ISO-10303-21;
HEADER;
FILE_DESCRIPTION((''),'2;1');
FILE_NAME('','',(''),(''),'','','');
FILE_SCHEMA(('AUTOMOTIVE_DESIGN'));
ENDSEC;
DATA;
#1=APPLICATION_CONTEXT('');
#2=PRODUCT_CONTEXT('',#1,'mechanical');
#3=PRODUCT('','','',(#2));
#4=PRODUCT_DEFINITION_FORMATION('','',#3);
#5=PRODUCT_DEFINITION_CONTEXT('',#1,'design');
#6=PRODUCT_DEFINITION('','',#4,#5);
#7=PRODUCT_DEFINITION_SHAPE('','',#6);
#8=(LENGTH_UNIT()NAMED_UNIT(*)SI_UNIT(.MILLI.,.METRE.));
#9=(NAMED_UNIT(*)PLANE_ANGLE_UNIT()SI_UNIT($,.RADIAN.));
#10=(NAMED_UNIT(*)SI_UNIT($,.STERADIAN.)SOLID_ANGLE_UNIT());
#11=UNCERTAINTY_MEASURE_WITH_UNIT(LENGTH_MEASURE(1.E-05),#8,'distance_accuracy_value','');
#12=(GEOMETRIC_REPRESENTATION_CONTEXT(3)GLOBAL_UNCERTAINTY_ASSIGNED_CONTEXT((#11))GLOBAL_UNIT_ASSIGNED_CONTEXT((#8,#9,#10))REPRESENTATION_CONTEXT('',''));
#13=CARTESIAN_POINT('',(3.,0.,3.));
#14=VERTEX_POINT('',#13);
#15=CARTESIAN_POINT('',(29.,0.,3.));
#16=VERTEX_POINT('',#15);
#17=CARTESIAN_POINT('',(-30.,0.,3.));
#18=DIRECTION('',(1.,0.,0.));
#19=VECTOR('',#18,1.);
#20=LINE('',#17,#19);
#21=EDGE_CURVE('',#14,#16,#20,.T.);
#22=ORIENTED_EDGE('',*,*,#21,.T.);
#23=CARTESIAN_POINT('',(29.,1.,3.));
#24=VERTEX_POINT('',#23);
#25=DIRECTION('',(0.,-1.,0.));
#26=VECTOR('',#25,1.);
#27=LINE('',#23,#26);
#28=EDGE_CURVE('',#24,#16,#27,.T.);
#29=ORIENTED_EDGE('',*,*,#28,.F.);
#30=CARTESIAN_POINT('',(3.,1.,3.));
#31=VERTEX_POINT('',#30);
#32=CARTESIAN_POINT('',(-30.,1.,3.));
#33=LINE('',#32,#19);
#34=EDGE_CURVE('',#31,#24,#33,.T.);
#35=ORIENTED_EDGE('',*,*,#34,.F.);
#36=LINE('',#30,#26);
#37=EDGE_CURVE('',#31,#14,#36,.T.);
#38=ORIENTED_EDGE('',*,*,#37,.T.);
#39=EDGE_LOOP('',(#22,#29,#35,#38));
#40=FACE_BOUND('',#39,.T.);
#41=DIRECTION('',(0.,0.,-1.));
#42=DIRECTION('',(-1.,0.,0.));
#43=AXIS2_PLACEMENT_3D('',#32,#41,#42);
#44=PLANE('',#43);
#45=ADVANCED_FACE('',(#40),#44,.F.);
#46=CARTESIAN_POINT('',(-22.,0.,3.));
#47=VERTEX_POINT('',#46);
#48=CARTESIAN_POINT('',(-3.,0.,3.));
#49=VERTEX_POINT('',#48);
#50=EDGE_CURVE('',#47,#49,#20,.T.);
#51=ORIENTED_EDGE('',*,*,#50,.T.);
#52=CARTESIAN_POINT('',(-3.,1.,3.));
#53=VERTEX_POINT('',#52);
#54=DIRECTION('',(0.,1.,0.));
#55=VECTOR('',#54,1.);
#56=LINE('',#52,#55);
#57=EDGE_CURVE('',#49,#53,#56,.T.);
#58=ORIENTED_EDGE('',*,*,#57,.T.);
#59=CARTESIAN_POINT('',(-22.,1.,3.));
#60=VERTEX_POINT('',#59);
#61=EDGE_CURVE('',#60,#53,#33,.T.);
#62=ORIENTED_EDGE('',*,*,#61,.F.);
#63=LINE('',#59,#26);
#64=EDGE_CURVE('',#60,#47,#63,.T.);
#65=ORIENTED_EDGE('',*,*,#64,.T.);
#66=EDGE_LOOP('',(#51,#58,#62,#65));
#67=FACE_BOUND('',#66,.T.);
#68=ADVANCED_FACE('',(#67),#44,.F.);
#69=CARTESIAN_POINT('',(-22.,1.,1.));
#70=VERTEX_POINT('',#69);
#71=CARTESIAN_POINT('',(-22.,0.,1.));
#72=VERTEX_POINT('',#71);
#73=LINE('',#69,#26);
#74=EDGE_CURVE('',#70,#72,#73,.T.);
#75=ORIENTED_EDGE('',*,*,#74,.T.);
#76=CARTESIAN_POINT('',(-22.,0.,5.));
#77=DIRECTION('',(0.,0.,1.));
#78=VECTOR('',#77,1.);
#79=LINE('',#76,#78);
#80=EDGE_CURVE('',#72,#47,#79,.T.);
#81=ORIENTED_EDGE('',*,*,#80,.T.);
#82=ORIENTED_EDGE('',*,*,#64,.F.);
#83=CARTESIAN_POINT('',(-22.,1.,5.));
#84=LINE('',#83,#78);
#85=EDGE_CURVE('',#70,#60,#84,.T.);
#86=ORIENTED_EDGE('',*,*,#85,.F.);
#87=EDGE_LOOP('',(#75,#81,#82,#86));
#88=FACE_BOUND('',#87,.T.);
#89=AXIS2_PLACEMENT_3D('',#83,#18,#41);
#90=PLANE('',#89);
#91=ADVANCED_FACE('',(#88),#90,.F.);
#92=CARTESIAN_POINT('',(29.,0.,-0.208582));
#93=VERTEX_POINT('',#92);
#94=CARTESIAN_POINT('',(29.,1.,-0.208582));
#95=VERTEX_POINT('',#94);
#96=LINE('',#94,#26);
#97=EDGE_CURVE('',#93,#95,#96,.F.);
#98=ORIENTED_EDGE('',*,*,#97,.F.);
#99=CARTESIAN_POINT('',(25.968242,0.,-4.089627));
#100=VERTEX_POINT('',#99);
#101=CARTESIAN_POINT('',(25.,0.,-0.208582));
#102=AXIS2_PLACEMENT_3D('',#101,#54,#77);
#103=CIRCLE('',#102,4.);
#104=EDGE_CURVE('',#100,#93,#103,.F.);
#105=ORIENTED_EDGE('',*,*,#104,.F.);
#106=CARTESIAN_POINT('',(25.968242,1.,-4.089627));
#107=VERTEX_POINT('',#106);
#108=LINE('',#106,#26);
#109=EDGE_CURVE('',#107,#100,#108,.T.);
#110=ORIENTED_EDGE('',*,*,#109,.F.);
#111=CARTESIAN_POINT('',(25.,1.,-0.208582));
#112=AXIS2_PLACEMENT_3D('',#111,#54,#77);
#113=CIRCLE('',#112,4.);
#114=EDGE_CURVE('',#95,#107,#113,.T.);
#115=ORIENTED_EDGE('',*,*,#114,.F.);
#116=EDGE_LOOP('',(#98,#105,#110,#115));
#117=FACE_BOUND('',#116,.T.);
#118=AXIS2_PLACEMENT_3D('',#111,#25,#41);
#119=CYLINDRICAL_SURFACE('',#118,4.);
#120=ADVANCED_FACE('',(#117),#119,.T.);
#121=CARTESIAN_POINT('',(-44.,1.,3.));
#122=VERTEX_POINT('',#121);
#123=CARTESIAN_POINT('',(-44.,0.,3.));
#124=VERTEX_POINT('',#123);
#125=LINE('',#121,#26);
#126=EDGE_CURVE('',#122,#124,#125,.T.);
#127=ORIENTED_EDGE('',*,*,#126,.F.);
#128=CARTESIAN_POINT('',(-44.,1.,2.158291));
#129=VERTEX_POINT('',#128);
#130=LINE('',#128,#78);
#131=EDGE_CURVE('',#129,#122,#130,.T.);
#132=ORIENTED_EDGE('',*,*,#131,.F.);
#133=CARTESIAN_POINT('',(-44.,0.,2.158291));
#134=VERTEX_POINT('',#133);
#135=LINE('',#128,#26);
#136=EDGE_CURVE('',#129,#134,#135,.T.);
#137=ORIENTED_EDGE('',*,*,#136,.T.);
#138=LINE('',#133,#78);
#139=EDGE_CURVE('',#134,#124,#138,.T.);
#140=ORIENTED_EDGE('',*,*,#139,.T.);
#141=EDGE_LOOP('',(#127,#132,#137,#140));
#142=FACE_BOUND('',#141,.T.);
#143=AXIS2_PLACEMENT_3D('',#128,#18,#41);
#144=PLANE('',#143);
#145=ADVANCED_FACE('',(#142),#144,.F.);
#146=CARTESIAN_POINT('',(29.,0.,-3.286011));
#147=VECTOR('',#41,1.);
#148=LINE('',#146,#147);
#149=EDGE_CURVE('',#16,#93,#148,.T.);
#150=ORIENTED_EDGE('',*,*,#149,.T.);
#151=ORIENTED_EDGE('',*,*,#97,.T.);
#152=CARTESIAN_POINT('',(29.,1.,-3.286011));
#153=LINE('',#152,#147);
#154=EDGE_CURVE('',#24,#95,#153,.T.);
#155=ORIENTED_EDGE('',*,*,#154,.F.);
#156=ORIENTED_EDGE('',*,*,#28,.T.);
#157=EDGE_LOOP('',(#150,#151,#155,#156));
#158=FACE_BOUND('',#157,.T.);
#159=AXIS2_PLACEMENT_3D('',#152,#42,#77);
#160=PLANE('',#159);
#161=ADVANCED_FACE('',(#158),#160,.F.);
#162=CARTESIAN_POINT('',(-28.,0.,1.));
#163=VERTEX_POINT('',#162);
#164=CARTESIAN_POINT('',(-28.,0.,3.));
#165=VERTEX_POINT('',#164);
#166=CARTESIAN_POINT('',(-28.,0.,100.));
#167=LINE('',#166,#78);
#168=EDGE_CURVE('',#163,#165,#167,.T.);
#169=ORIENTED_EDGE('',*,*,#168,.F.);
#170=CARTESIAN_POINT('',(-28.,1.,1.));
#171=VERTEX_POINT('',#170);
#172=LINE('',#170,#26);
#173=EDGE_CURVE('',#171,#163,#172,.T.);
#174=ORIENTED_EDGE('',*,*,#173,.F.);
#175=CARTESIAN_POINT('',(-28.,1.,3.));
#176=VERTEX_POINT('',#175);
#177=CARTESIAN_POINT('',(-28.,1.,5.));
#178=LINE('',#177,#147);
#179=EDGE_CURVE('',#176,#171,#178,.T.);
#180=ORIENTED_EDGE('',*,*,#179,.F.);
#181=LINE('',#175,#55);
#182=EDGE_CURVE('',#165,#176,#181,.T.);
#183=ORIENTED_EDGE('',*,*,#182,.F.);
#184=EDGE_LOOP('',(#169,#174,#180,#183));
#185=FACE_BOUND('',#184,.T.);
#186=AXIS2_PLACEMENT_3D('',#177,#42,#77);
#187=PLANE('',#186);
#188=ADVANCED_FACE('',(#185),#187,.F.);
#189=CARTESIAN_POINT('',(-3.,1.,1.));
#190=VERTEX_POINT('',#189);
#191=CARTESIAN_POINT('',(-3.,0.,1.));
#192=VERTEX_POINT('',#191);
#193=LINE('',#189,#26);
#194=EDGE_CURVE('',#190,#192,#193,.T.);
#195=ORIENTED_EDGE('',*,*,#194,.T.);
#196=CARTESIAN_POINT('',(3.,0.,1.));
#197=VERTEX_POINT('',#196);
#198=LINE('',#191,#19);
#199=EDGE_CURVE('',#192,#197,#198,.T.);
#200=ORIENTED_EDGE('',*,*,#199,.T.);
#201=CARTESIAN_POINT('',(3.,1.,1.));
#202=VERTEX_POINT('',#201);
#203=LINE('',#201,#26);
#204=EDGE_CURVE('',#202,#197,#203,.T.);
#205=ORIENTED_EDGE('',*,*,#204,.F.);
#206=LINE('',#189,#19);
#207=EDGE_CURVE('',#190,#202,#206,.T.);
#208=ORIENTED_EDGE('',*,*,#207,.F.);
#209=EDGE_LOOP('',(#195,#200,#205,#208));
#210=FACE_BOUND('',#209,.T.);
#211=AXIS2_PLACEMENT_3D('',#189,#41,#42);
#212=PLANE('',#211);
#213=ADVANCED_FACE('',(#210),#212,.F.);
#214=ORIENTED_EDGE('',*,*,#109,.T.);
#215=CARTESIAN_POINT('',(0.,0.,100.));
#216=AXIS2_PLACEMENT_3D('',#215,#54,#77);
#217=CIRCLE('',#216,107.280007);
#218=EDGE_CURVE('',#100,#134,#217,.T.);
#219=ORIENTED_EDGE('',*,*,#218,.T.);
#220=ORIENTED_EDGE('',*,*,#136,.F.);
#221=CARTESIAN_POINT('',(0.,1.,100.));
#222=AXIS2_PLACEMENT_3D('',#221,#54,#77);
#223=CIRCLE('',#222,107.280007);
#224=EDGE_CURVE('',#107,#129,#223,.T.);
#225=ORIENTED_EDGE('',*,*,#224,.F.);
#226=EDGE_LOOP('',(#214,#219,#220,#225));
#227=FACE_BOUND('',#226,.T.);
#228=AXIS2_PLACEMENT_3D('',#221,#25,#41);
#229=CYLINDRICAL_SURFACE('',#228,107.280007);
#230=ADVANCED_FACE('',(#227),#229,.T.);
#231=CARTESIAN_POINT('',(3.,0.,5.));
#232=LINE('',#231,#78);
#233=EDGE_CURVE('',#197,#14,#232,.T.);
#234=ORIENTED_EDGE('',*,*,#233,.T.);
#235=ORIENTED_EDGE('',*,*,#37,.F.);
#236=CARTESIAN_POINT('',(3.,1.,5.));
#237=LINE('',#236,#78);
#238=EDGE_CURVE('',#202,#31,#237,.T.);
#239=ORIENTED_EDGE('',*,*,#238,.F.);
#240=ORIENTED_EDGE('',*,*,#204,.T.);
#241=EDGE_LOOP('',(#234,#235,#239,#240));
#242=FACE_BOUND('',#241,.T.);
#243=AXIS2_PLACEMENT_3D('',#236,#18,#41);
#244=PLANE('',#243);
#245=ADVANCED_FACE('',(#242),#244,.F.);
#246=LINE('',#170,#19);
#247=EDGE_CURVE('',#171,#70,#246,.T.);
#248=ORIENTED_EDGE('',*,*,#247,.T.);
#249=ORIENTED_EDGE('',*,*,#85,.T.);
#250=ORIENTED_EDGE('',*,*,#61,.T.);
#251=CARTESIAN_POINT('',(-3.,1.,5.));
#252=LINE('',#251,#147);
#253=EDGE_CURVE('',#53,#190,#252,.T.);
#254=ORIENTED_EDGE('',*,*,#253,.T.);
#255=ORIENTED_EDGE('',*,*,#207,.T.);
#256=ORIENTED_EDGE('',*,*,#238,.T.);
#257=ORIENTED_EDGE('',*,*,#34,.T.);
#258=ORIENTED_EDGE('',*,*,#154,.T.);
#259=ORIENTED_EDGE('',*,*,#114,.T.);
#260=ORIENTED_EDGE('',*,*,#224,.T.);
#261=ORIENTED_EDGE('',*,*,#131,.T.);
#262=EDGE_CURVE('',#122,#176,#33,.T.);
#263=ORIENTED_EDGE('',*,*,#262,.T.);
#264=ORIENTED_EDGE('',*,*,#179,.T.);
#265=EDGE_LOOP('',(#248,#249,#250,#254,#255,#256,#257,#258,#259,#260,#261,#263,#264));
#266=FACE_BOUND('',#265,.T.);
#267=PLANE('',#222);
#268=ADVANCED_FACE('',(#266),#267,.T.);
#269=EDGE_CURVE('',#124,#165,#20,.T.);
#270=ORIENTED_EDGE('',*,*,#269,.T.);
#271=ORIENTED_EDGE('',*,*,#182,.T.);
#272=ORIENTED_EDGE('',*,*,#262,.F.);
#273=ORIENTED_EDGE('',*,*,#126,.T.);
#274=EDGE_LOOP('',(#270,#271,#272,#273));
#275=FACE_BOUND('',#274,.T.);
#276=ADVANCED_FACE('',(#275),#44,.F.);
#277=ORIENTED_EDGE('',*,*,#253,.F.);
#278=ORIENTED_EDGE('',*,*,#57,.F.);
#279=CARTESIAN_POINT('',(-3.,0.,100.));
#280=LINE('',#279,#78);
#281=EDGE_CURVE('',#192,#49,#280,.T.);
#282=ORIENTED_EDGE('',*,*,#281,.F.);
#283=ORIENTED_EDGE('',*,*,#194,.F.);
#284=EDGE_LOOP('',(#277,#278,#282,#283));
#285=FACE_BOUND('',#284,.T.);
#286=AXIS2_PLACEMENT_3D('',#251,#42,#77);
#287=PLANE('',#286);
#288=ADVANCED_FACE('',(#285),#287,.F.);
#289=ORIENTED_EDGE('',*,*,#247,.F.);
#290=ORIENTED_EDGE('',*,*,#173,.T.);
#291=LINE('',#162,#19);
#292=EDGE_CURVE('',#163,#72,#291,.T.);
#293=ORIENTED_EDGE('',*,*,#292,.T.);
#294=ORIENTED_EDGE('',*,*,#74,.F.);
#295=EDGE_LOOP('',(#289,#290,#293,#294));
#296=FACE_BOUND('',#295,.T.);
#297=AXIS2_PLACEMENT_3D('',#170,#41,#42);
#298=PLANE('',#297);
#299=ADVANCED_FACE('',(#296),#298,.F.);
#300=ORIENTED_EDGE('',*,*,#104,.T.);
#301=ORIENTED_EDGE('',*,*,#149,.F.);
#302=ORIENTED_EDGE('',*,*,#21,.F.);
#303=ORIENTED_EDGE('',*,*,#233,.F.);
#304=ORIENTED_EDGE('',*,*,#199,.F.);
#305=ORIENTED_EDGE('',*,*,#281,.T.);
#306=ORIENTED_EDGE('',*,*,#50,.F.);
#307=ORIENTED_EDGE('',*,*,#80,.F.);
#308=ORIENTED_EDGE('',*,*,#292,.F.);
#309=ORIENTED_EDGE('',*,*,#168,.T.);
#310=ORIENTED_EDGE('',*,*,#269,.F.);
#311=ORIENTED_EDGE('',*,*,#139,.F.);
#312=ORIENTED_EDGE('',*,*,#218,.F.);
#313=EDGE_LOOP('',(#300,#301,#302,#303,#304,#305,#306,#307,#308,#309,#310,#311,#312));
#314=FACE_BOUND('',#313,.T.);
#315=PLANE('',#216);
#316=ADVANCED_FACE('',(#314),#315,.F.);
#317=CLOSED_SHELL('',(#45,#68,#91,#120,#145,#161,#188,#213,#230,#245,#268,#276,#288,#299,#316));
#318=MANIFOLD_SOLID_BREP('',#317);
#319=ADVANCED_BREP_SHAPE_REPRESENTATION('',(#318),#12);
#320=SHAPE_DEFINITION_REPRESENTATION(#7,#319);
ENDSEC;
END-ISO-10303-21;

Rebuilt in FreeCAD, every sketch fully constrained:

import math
import FreeCAD as App
import Part
import Sketcher
from FreeCAD import Vector


def edges_at(feature, points):
    """Names of the edges that pass closest to the given points."""
    edges = feature.Shape.Edges
    near = lambda p: min(range(len(edges)), key=lambda i: edges[i].distToShape(Part.Vertex(*p))[0])
    return sorted({f"Edge{near(p) + 1}" for p in points})


def add_polygon(sketch, points):
    """Adds a closed chain of lines whose ends are joined by coincident constraints."""
    first, n = sketch.GeometryCount, len(points)
    for a, b in zip(points, points[1:] + points[:1]):
        sketch.addGeometry(Part.LineSegment(App.Vector(*a, 0), App.Vector(*b, 0)), False)
    for i in range(n):
        sketch.addConstraint(Sketcher.Constraint("Coincident", first + i, 2, first + (i + 1) % n, 1))

doc = App.newDocument("Part")
body = doc.addObject("PartDesign::Body", "Body")

sketch1 = doc.addObject("Sketcher::SketchObject", "Sketch")
body.addObject(sketch1)
sketch1.AttachmentSupport = (doc.XZ_Plane, [""])
sketch1.MapMode = "FlatFace"
sketch1.addGeometry([
    Part.LineSegment(Vector(-44, 2.2, 0), Vector(-44, 3, 0)),
    Part.LineSegment(Vector(-44, 3, 0), Vector(29, 3, 0)),
    Part.LineSegment(Vector(29, 3, 0), Vector(29, -3.3, 0)),
    Part.ArcOfCircle(Part.Circle(Vector(0, 100, 0), Vector(0, 0, 1), 107.3), math.radians(-114), math.radians(-74)),
], False)
sketch1.addConstraint([
    Sketcher.Constraint("Coincident", 0, 2, 1, 1),
    Sketcher.Constraint("Coincident", 1, 2, 2, 1),
    Sketcher.Constraint("Coincident", 2, 2, 3, 2),
    Sketcher.Constraint("Coincident", 3, 1, 0, 1),
    Sketcher.Constraint("Vertical", 0),
    Sketcher.Constraint("Horizontal", 1),
    Sketcher.Constraint("Vertical", 2),
    Sketcher.Constraint("PointOnObject", 3, 3, -2),
    Sketcher.Constraint("DistanceX", 1, 1, 1, 2, 73.0),
    Sketcher.Constraint("DistanceY", -1, 1, 3, 3, 100.0),
    Sketcher.Constraint("DistanceX", 0, 2, -1, 1, 44.0),
    Sketcher.Constraint("DistanceY", -1, 1, 0, 2, 3.0),
    Sketcher.Constraint("Radius", 3, 107.280007),
])
pad1 = doc.addObject("PartDesign::Pad", "Pad")
body.addObject(pad1)
pad1.Profile = sketch1
pad1.Length = 1
pad1.Reversed = True

sketch2 = doc.addObject("Sketcher::SketchObject", "Sketch001")
body.addObject(sketch2)
sketch2.AttachmentSupport = (doc.XZ_Plane, [""])
sketch2.MapMode = "FlatFace"
add_polygon(sketch2, [(-3, 5), (-3, 1), (3, 1), (3, 5)])
add_polygon(sketch2, [(-28, 5), (-28, 1), (-22, 1), (-22, 5)])
sketch2.addConstraint([
    Sketcher.Constraint("Vertical", 0),
    Sketcher.Constraint("Horizontal", 1),
    Sketcher.Constraint("Vertical", 2),
    Sketcher.Constraint("Horizontal", 3),
    Sketcher.Constraint("Vertical", 4),
    Sketcher.Constraint("Horizontal", 5),
    Sketcher.Constraint("Vertical", 6),
    Sketcher.Constraint("Horizontal", 7),
    Sketcher.Constraint("Horizontal", 1, 2, 4, 2),
    Sketcher.Constraint("Horizontal", 3, 2, 6, 2),
    Sketcher.Constraint("Equal", 3, 5),
    Sketcher.Constraint("DistanceX", 1, 1, 1, 2, 6.0),
    Sketcher.Constraint("DistanceY", 0, 2, 0, 1, 4.0),
    Sketcher.Constraint("DistanceX", 0, 2, -1, 1, 3.0),
    Sketcher.Constraint("DistanceY", -1, 1, 0, 2, 1.0),
    Sketcher.Constraint("DistanceX", 4, 2, -1, 1, 28.0),
])
pocket1 = doc.addObject("PartDesign::Pocket", "Pocket")
body.addObject(pocket1)
pocket1.Profile = sketch2
pocket1.Type = "ThroughAll"
doc.recompute()

fillet = doc.addObject("PartDesign::Fillet", "Fillet")
body.addObject(fillet)
fillet.Base = (pocket1, edges_at(pocket1, [(29, 0.5, -3.286)]))
fillet.Radius = 4

doc.recompute()
